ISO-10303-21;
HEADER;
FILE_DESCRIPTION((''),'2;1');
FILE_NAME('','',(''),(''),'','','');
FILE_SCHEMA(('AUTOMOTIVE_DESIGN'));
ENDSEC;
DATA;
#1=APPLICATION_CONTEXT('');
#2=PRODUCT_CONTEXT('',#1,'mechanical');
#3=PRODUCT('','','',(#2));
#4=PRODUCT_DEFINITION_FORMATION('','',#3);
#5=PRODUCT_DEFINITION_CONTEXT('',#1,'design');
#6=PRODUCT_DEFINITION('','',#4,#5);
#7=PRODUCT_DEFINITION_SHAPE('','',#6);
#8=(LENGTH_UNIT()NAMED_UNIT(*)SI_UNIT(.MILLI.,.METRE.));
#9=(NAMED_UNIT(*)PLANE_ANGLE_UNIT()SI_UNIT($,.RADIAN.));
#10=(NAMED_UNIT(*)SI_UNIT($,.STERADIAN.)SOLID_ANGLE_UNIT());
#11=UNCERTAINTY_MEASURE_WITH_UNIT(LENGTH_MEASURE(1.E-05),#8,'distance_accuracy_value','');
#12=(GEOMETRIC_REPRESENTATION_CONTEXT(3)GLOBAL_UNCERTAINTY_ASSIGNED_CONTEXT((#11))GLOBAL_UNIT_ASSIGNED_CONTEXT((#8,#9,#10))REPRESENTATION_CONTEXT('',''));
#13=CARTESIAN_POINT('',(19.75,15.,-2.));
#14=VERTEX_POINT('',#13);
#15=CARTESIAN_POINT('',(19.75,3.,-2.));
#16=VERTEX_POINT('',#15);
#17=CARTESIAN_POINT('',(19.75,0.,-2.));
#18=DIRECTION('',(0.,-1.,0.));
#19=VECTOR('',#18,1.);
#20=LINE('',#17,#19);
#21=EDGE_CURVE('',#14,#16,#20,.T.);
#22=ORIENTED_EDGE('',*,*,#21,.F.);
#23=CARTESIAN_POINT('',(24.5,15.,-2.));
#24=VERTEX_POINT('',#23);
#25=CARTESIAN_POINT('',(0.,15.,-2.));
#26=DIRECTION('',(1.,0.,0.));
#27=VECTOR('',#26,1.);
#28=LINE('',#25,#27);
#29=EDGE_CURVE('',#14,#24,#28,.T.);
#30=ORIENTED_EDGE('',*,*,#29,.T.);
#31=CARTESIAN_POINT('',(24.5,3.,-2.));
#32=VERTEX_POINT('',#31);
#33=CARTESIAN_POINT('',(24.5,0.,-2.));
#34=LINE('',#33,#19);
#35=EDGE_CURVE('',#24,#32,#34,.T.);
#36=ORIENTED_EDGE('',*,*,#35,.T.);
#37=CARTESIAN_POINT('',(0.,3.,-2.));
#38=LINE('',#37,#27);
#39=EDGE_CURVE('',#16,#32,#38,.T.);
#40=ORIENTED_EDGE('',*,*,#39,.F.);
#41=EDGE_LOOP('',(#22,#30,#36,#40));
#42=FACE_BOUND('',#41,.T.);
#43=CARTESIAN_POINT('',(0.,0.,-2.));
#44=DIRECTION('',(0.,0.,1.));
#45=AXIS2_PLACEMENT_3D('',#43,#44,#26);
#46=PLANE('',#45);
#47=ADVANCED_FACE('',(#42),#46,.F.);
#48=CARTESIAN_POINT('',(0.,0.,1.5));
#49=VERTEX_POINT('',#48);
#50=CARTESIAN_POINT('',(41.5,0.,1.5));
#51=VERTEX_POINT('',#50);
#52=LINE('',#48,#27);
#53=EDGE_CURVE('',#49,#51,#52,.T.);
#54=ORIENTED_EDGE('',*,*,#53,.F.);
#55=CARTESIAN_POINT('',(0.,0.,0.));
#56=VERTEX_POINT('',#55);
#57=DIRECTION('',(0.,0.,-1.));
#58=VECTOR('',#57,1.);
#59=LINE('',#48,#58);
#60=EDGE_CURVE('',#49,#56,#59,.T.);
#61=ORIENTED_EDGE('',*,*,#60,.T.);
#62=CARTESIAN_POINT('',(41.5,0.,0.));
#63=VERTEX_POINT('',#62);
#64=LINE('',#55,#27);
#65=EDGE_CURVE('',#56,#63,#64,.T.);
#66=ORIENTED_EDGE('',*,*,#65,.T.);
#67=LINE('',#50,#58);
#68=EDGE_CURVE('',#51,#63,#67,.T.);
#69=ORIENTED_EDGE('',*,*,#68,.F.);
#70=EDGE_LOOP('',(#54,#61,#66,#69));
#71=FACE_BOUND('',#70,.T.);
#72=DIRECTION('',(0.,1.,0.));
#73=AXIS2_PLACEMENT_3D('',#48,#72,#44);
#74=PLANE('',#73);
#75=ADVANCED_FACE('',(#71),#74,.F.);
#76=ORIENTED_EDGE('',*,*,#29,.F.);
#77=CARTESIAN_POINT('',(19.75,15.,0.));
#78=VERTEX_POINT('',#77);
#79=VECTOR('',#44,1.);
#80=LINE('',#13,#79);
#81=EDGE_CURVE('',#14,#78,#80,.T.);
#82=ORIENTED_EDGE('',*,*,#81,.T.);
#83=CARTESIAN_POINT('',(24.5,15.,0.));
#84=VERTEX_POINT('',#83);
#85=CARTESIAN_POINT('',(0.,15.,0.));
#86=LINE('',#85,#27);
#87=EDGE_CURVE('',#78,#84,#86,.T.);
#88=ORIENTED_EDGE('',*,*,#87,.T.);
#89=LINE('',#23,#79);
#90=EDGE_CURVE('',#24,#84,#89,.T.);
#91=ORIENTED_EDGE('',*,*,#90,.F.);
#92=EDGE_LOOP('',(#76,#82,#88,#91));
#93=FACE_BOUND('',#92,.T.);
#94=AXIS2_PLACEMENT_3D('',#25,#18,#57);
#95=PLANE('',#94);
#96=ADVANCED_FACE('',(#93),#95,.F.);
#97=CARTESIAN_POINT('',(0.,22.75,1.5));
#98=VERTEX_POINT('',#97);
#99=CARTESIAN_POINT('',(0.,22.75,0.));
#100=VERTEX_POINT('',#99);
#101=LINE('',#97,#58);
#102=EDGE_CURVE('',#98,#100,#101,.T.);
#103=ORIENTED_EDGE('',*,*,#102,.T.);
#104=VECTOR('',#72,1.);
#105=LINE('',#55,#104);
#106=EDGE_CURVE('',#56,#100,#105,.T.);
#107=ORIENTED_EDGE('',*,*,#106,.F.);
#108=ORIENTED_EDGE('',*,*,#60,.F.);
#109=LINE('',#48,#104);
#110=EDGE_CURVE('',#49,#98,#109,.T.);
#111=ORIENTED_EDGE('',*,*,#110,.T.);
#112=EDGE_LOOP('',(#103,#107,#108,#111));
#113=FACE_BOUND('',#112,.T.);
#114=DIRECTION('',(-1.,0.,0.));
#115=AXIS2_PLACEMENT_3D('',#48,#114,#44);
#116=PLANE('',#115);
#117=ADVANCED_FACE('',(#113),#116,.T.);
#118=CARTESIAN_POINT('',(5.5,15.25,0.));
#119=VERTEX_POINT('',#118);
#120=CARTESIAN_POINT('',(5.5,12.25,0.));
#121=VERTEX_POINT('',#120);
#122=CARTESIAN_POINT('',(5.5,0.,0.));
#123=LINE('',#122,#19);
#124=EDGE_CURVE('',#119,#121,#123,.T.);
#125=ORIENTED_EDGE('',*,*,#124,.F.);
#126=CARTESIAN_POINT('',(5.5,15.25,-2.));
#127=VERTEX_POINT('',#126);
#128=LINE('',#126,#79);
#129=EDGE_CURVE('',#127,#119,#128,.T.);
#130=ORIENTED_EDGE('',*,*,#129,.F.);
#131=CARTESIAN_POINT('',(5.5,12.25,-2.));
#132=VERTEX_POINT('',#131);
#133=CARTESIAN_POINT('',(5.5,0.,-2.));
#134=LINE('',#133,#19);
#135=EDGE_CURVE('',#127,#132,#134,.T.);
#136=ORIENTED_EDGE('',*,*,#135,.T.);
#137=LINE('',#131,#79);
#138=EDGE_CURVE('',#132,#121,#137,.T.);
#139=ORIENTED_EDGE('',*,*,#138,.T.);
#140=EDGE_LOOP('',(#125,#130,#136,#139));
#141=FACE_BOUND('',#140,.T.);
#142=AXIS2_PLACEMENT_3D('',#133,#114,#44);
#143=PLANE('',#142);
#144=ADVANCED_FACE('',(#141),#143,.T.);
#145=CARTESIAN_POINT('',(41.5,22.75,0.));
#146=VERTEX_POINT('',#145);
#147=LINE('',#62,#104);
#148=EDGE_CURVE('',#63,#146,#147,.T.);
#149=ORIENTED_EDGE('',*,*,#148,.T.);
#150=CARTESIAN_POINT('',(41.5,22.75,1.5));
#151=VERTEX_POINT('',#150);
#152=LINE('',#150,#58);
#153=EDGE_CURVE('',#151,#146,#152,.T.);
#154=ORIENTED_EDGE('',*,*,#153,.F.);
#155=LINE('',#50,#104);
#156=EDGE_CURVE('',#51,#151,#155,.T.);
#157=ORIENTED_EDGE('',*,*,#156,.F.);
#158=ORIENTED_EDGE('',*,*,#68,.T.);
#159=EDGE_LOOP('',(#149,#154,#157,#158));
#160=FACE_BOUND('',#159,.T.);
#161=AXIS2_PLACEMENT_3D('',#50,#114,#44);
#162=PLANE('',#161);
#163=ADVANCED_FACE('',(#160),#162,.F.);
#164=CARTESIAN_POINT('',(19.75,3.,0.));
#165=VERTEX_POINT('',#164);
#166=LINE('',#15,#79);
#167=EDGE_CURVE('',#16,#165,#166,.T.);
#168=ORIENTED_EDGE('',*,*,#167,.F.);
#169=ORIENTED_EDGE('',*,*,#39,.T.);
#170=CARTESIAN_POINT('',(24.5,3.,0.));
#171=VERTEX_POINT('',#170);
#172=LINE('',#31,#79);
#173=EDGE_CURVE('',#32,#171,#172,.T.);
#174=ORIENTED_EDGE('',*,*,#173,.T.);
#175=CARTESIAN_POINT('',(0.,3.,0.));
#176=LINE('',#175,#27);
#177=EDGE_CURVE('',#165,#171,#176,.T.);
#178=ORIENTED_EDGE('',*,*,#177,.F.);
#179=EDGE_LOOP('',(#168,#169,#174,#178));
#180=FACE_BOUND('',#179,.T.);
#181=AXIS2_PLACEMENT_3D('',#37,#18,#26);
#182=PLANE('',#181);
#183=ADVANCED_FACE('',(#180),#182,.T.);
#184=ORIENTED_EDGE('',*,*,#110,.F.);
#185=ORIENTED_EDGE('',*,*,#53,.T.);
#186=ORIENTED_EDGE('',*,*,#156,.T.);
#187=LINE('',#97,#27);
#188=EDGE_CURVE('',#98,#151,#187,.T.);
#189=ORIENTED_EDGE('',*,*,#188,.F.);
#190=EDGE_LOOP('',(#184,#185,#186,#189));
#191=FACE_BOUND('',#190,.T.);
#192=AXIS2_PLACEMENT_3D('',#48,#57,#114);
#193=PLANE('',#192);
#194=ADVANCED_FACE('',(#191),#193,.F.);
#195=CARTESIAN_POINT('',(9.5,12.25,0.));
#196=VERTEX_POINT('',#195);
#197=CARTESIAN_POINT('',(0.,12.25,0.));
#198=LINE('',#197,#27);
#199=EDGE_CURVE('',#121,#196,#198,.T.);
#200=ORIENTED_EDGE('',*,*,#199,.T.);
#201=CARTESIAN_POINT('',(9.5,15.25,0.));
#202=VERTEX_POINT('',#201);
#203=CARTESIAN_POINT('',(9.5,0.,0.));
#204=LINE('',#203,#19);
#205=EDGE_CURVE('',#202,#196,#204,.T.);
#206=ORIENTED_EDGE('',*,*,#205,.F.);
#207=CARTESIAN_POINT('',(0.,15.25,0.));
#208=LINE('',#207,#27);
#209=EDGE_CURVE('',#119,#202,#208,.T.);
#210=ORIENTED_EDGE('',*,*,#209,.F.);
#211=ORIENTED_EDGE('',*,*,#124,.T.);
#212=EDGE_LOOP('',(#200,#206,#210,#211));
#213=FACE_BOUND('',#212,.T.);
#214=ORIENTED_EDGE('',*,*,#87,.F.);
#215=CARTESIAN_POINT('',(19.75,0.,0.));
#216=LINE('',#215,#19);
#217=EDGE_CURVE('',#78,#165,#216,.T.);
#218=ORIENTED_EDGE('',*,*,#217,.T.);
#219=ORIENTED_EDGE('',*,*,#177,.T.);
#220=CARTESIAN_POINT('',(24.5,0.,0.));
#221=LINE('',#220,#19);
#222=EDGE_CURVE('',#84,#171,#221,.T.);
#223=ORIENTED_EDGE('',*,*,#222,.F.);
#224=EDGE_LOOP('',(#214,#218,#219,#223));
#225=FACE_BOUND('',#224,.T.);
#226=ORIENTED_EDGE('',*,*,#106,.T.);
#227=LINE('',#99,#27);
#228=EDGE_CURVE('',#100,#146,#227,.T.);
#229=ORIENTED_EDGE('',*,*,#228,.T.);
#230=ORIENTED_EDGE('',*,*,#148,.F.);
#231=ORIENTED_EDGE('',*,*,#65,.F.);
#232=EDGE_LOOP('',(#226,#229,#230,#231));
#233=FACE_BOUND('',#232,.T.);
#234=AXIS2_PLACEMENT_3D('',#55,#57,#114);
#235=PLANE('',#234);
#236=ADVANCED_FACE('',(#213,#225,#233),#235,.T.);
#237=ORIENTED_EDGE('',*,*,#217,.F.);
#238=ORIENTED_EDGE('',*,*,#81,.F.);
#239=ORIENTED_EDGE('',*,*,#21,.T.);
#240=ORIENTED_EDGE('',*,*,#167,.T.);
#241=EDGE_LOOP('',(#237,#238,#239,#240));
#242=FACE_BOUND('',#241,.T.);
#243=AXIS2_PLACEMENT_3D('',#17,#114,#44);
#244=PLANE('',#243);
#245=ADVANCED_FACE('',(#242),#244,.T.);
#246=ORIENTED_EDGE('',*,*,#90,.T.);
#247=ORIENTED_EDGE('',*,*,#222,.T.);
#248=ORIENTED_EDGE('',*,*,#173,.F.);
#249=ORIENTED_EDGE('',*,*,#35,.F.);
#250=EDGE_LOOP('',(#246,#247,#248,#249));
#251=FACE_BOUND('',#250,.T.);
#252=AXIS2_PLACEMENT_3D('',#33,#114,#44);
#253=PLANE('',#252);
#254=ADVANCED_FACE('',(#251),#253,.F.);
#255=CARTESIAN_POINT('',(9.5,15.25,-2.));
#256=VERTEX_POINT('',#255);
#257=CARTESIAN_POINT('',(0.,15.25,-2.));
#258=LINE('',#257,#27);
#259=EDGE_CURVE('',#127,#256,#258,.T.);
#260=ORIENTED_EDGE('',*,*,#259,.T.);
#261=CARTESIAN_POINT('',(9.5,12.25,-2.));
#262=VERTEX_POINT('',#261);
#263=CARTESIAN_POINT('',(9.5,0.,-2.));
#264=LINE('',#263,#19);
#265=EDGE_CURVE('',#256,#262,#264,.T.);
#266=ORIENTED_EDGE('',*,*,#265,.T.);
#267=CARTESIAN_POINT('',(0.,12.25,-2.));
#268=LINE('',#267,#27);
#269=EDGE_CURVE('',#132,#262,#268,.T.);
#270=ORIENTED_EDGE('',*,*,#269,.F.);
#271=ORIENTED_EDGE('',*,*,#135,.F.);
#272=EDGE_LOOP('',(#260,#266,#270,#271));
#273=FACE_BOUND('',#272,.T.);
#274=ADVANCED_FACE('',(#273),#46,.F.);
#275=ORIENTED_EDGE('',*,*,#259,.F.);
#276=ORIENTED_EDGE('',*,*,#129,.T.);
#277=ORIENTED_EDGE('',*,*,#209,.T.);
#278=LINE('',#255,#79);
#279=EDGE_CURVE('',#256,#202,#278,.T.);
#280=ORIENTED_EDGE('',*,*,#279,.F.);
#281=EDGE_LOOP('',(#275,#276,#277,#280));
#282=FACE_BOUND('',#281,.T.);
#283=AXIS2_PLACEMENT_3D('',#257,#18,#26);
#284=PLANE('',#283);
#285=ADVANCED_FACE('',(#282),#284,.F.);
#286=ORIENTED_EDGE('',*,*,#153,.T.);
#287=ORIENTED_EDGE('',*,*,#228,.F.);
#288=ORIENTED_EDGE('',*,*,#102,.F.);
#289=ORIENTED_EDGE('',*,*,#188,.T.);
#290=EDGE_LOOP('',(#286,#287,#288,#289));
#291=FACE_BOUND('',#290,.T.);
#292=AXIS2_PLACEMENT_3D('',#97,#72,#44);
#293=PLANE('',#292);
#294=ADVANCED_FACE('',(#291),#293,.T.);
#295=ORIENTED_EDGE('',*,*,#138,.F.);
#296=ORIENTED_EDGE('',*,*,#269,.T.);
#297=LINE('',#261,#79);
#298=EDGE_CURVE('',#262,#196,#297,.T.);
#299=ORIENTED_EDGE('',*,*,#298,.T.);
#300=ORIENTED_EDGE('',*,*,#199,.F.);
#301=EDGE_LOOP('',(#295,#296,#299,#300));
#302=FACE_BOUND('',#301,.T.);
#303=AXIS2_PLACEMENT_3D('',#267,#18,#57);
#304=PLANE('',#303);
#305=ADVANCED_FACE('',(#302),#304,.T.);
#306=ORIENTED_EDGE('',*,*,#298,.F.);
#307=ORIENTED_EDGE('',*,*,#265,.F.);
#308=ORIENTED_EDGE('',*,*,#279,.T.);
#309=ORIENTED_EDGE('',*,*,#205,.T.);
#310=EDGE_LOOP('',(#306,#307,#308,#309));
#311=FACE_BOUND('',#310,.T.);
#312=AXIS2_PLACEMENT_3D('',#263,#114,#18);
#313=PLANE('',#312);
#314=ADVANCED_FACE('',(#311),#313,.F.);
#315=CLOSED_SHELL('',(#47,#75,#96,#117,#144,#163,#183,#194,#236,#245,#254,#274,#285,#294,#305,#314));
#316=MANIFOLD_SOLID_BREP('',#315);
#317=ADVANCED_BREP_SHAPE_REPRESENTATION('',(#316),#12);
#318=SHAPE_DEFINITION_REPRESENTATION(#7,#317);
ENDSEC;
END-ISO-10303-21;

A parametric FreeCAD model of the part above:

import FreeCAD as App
import Part
import Sketcher

V = App.Vector
Q = App.Units.Quantity

doc = App.newDocument("Part")
body = doc.addObject("PartDesign::Body", "Body")

sketch1 = body.newObject("Sketcher::SketchObject", "Sketch")
sketch1.AttachmentSupport = (doc.getObject("XY_Plane"), [""])
sketch1.MapMode = "FlatFace"
sketch1.addGeometry(Part.LineSegment(V(0, 23, 0), V(0, 0, 0)), False)
sketch1.addGeometry(Part.LineSegment(V(0, 0, 0), V(42, 0, 0)), False)
sketch1.addGeometry(Part.LineSegment(V(42, 0, 0), V(42, 23, 0)), False)
sketch1.addGeometry(Part.LineSegment(V(42, 23, 0), V(0, 23, 0)), False)
sketch1.addConstraint(Sketcher.Constraint("Coincident", 0, 2, 1, 1))
sketch1.addConstraint(Sketcher.Constraint("Coincident", 1, 2, 2, 1))
sketch1.addConstraint(Sketcher.Constraint("Coincident", 2, 2, 3, 1))
sketch1.addConstraint(Sketcher.Constraint("Coincident", 3, 2, 0, 1))
sketch1.addConstraint(Sketcher.Constraint("Vertical", 0))
sketch1.addConstraint(Sketcher.Constraint("Horizontal", 1))
sketch1.addConstraint(Sketcher.Constraint("Vertical", 2))
sketch1.addConstraint(Sketcher.Constraint("Horizontal", 3))
sketch1.addConstraint(Sketcher.Constraint("Coincident", 0, 2, -1, 1))
sketch1.addConstraint(Sketcher.Constraint("DistanceX", 1, 1, 1, 2, Q("41.5 mm")))
sketch1.addConstraint(Sketcher.Constraint("DistanceY", 0, 2, 0, 1, Q("22.75 mm")))
pad1 = body.newObject("PartDesign::Pad", "Pad")
pad1.Profile = sketch1
pad1.Length = 1.5

sketch2 = body.newObject("Sketcher::SketchObject", "Sketch001")
sketch2.AttachmentSupport = (doc.getObject("XY_Plane"), [""])
sketch2.MapMode = "FlatFace"
sketch2.addGeometry(Part.LineSegment(V(19.8, 15, 0), V(19.8, 3, 0)), False)
sketch2.addGeometry(Part.LineSegment(V(19.8, 3, 0), V(24.5, 3, 0)), False)
sketch2.addGeometry(Part.LineSegment(V(24.5, 3, 0), V(24.5, 15, 0)), False)
sketch2.addGeometry(Part.LineSegment(V(24.5, 15, 0), V(19.8, 15, 0)), False)
sketch2.addGeometry(Part.LineSegment(V(5.5, 15.2, 0), V(5.5, 12.2, 0)), False)
sketch2.addGeometry(Part.LineSegment(V(5.5, 12.2, 0), V(9.5, 12.2, 0)), False)
sketch2.addGeometry(Part.LineSegment(V(9.5, 12.2, 0), V(9.5, 15.2, 0)), False)
sketch2.addGeometry(Part.LineSegment(V(9.5, 15.2, 0), V(5.5, 15.2, 0)), False)
sketch2.addConstraint(Sketcher.Constraint("Coincident", 0, 2, 1, 1))
sketch2.addConstraint(Sketcher.Constraint("Coincident", 1, 2, 2, 1))
sketch2.addConstraint(Sketcher.Constraint("Coincident", 2, 2, 3, 1))
sketch2.addConstraint(Sketcher.Constraint("Coincident", 3, 2, 0, 1))
sketch2.addConstraint(Sketcher.Constraint("Coincident", 4, 2, 5, 1))
sketch2.addConstraint(Sketcher.Constraint("Coincident", 5, 2, 6, 1))
sketch2.addConstraint(Sketcher.Constraint("Coincident", 6, 2, 7, 1))
sketch2.addConstraint(Sketcher.Constraint("Coincident", 7, 2, 4, 1))
sketch2.addConstraint(Sketcher.Constraint("Vertical", 0))
sketch2.addConstraint(Sketcher.Constraint("Horizontal", 1))
sketch2.addConstraint(Sketcher.Constraint("Vertical", 2))
sketch2.addConstraint(Sketcher.Constraint("Horizontal", 3))
sketch2.addConstraint(Sketcher.Constraint("Vertical", 4))
sketch2.addConstraint(Sketcher.Constraint("Horizontal", 5))
sketch2.addConstraint(Sketcher.Constraint("Vertical", 6))
sketch2.addConstraint(Sketcher.Constraint("Horizontal", 7))
sketch2.addConstraint(Sketcher.Constraint("DistanceX", 5, 1, 5, 2, Q("4 mm")))
sketch2.addConstraint(Sketcher.Constraint("DistanceY", 0, 2, 0, 1, Q("12 mm")))
sketch2.addConstraint(Sketcher.Constraint("DistanceY", 4, 2, 4, 1, Q("3 mm")))
sketch2.addConstraint(Sketcher.Constraint("DistanceY", -1, 1, 0, 2, Q("3 mm")))
sketch2.addConstraint(Sketcher.Constraint("DistanceX", 4, 2, 2, 2, Q("19 mm")))
sketch2.addConstraint(Sketcher.Constraint("DistanceX", 1, 1, 1, 2, Q("4.75 mm")))
sketch2.addConstraint(Sketcher.Constraint("DistanceX", -1, 1, 1, 2, Q("24.5 mm")))
sketch2.addConstraint(Sketcher.Constraint("DistanceY", -1, 1, 4, 2, Q("12.25 mm")))
pad2 = body.newObject("PartDesign::Pad", "Pad001")
pad2.Profile = sketch2
pad2.Length = 2
pad2.Reversed = True

doc.recompute()
